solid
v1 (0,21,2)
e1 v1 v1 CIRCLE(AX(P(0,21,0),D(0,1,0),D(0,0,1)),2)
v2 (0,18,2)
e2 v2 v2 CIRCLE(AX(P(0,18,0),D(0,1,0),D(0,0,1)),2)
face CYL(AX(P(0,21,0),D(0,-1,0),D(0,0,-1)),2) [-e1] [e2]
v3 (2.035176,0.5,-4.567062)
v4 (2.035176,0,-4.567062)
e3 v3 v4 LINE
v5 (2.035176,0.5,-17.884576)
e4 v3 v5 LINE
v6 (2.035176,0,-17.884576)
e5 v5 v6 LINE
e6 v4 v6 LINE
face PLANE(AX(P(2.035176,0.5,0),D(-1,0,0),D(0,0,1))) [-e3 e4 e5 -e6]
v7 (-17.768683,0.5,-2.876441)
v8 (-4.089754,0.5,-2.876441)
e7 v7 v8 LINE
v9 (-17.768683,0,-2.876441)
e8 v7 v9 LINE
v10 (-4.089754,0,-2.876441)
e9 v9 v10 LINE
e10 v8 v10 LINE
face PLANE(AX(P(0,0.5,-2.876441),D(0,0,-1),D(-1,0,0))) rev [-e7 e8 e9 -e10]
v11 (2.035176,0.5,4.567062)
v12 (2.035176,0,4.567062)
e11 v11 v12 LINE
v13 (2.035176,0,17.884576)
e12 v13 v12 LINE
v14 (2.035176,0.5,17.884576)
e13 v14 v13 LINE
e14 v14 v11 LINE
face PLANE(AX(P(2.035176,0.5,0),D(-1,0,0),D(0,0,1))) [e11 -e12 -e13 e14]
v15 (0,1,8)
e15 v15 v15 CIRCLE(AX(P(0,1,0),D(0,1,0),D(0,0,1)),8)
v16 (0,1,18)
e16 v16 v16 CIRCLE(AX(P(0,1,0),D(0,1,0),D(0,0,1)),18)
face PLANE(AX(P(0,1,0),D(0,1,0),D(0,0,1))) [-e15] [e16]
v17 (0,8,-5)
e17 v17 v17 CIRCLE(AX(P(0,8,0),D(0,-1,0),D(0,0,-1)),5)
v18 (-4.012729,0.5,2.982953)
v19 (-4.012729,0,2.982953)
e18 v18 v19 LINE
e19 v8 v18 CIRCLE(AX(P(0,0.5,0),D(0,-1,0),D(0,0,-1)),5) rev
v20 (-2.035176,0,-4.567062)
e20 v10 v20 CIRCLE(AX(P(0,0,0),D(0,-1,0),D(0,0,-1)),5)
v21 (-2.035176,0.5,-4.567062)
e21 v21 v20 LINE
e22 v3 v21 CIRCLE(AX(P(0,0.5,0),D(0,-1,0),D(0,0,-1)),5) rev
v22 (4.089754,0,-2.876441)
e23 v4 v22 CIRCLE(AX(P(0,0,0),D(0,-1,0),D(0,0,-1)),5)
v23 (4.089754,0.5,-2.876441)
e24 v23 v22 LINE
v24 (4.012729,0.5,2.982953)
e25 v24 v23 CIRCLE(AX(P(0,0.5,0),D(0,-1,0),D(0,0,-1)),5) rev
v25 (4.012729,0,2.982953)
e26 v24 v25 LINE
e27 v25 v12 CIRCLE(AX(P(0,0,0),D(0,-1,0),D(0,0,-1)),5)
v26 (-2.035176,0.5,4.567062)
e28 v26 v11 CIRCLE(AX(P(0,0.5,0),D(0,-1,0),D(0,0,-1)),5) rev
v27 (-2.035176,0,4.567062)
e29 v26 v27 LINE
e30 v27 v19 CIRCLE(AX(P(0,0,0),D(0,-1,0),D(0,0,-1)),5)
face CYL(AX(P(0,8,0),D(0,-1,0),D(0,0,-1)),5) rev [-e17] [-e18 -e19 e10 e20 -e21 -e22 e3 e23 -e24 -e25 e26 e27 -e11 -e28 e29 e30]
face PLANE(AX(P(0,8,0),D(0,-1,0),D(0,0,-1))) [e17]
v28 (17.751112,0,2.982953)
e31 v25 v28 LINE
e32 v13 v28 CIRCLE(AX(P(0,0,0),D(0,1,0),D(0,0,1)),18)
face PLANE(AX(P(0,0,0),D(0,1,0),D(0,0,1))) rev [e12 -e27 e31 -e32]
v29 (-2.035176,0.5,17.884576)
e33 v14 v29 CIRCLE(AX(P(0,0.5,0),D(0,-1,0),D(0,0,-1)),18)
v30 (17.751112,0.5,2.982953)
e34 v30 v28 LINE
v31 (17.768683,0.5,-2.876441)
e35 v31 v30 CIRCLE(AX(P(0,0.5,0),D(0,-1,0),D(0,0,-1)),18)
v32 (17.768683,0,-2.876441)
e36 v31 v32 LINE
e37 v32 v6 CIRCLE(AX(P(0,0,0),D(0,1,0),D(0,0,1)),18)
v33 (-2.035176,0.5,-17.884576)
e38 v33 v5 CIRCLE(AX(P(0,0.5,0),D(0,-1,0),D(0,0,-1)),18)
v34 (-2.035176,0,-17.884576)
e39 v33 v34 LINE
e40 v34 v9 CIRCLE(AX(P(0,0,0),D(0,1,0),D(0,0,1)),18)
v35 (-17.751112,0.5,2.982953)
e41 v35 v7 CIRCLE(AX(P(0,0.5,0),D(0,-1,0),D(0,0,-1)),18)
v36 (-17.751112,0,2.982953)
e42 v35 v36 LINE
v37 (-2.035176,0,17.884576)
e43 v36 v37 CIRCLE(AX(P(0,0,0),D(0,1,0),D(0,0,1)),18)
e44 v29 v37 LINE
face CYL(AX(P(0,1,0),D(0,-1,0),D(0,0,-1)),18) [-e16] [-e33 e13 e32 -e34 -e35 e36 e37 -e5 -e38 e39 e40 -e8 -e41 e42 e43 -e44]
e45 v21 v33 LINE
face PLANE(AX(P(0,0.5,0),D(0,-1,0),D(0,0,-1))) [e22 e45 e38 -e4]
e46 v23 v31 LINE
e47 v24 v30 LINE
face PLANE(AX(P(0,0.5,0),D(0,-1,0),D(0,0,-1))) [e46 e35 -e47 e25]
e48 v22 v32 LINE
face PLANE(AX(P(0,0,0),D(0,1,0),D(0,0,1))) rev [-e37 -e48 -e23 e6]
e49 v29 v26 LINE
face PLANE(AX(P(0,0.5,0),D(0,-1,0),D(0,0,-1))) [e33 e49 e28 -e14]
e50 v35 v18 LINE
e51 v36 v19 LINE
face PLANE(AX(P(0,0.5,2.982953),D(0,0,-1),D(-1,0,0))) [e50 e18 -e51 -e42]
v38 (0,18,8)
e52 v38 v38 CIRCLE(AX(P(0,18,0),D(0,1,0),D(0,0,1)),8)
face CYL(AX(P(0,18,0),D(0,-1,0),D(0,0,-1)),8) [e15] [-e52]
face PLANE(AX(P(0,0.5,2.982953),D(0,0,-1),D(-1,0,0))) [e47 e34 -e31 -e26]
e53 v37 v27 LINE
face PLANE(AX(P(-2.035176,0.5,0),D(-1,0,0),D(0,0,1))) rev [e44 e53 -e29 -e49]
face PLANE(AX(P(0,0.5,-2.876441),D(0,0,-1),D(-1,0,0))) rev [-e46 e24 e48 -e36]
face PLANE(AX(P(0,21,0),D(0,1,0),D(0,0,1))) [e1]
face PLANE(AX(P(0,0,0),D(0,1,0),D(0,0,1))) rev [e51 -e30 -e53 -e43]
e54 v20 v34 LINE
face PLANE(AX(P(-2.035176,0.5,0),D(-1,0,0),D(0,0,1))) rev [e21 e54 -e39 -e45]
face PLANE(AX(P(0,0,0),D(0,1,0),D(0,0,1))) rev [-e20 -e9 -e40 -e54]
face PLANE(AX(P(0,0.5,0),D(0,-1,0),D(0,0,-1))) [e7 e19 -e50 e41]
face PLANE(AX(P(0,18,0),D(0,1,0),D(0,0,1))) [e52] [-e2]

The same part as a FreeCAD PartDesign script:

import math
import FreeCAD as App
import Part
import Sketcher

V = App.Vector
Q = App.Units.Quantity

doc = App.newDocument("Part")
body = doc.addObject("PartDesign::Body", "Body")

# Sketch on XZ plane
sketch1 = body.newObject("Sketcher::SketchObject", "Sketch")
sketch1.AttachmentSupport = (doc.getObject("XZ_Plane"), [""])
sketch1.MapMode = "FlatFace"
sketch1.addGeometry(Part.Circle(V(0, 0, 0), V(0, 0, 1), 18), False)
sketch1.addConstraint([
    Sketcher.Constraint("Coincident", 0, 3, -1, 1),
    Sketcher.Constraint("Diameter", 0, Q("36 mm")),
])
pad1 = body.newObject("PartDesign::Pad", "Pad")
pad1.Profile = sketch1
pad1.Length = 1
pad1.Reversed = True

# Sketch on XZ plane
sketch2 = body.newObject("Sketcher::SketchObject", "Sketch001")
sketch2.AttachmentSupport = (doc.getObject("XZ_Plane"), [""])
sketch2.MapMode = "FlatFace"
sketch2.AttachmentOffset = App.Placement(V(0, 0, -1), App.Rotation())
sketch2.addGeometry(Part.Circle(V(0, 0, 0), V(0, 0, 1), 8), False)
sketch2.addConstraint([
    Sketcher.Constraint("Coincident", 0, 3, -1, 1),
    Sketcher.Constraint("Diameter", 0, Q("16 mm")),
])
pad2 = body.newObject("PartDesign::Pad", "Pad001")
pad2.Profile = sketch2
pad2.Length = 17
pad2.Reversed = True

# Sketch on XZ plane
sketch3 = body.newObject("Sketcher::SketchObject", "Sketch002")
sketch3.AttachmentSupport = (doc.getObject("XZ_Plane"), [""])
sketch3.MapMode = "FlatFace"
sketch3.AttachmentOffset = App.Placement(V(0, 0, -18), App.Rotation())
sketch3.addGeometry(Part.Circle(V(0, 0, 0), V(0, 0, 1), 2), False)
sketch3.addConstraint([
    Sketcher.Constraint("Coincident", 0, 3, -1, 1),
    Sketcher.Constraint("Diameter", 0, Q("4 mm")),
])
pad3 = body.newObject("PartDesign::Pad", "Pad002")
pad3.Profile = sketch3
pad3.Length = 3
pad3.Reversed = True

# Sketch on XZ plane
sketch4 = body.newObject("Sketcher::SketchObject", "Sketch003")
sketch4.AttachmentSupport = (doc.getObject("XZ_Plane"), [""])
sketch4.MapMode = "FlatFace"
sketch4.addGeometry(Part.Circle(V(0, 0, 0), V(0, 0, 1), 5), False)
sketch4.addConstraint([
    Sketcher.Constraint("Coincident", 0, 3, -1, 1),
    Sketcher.Constraint("Diameter", 0, Q("10 mm")),
])
pocket1 = body.newObject("PartDesign::Pocket", "Pocket")
pocket1.Profile = sketch4
pocket1.Length = 8

# Sketch on XZ plane
sketch5 = body.newObject("Sketcher::SketchObject", "Sketch004")
sketch5.AttachmentSupport = (doc.getObject("XZ_Plane"), [""])
sketch5.MapMode = "FlatFace"
sketch5.addGeometry([
    Part.ArcOfCircle(Part.Circle(V(0, 0, 0), V(0, 0, 1), 5), math.radians(114), math.radians(143)),  # 0
    Part.LineSegment(V(-4, 3, 0), V(-17.8, 3, 0)),  # 1
    Part.ArcOfCircle(Part.Circle(V(0, 0, 0), V(0, 0, 1), 18), math.radians(170.46), math.radians(180)),  # 2
    Part.ArcOfCircle(Part.Circle(V(0, 0, 0), V(0, 0, 1), 18), math.radians(-180), math.radians(-170.8)),  # 3
    Part.LineSegment(V(-17.8, -2.9, 0), V(-4.1, -2.9, 0)),  # 4
    Part.ArcOfCircle(Part.Circle(V(0, 0, 0), V(0, 0, 1), 5), math.radians(-145), math.radians(-114)),  # 5
    Part.LineSegment(V(-2, -4.6, 0), V(-2, -17.9, 0)),  # 6
    Part.ArcOfCircle(Part.Circle(V(0, 0, 0), V(0, 0, 1), 18), math.radians(-96.49), math.radians(-90)),  # 7
    Part.ArcOfCircle(Part.Circle(V(0, 0, 0), V(0, 0, 1), 18), math.radians(-90), math.radians(-83.51)),  # 8
    Part.LineSegment(V(2, -17.9, 0), V(2, -4.6, 0)),  # 9
    Part.ArcOfCircle(Part.Circle(V(0, 0, 0), V(0, 0, 1), 5), math.radians(-66), math.radians(-35)),  # 10
    Part.LineSegment(V(4.1, -2.9, 0), V(17.8, -2.9, 0)),  # 11
    Part.ArcOfCircle(Part.Circle(V(0, 0, 0), V(0, 0, 1), 18), math.radians(-9.2), math.radians(0)),  # 12
    Part.ArcOfCircle(Part.Circle(V(0, 0, 0), V(0, 0, 1), 18), math.radians(0), math.radians(9.54)),  # 13
    Part.LineSegment(V(17.8, 3, 0), V(4, 3, 0)),  # 14
    Part.ArcOfCircle(Part.Circle(V(0, 0, 0), V(0, 0, 1), 5), math.radians(37), math.radians(66)),  # 15
    Part.LineSegment(V(2, 4.6, 0), V(2, 17.9, 0)),  # 16
    Part.ArcOfCircle(Part.Circle(V(0, 0, 0), V(0, 0, 1), 18), math.radians(83.51), math.radians(90)),  # 17
    Part.ArcOfCircle(Part.Circle(V(0, 0, 0), V(0, 0, 1), 18), math.radians(90), math.radians(96.49)),  # 18
    Part.LineSegment(V(-2, 17.9, 0), V(-2, 4.6, 0)),  # 19
], False)
sketch5.addConstraint([
    Sketcher.Constraint("Coincident", 0, 2, 1, 1),
    Sketcher.Constraint("Coincident", 1, 2, 2, 1),
    Sketcher.Constraint("Tangent", 2, 2, 3, 1),
    Sketcher.Constraint("Coincident", 3, 2, 4, 1),
    Sketcher.Constraint("Coincident", 4, 2, 5, 1),
    Sketcher.Constraint("Coincident", 5, 2, 6, 1),
    Sketcher.Constraint("Coincident", 6, 2, 7, 1),
    Sketcher.Constraint("Tangent", 7, 2, 8, 1),
    Sketcher.Constraint("Coincident", 8, 2, 9, 1),
    Sketcher.Constraint("Coincident", 9, 2, 10, 1),
    Sketcher.Constraint("Coincident", 10, 2, 11, 1),
    Sketcher.Constraint("Coincident", 11, 2, 12, 1),
    Sketcher.Constraint("Tangent", 12, 2, 13, 1),
    Sketcher.Constraint("Coincident", 13, 2, 14, 1),
    Sketcher.Constraint("Coincident", 14, 2, 15, 1),
    Sketcher.Constraint("Coincident", 15, 2, 16, 1),
    Sketcher.Constraint("Coincident", 16, 2, 17, 1),
    Sketcher.Constraint("Tangent", 17, 2, 18, 1),
    Sketcher.Constraint("Coincident", 18, 2, 19, 1),
    Sketcher.Constraint("Coincident", 19, 2, 0, 1),
    Sketcher.Constraint("Horizontal", 1),
    Sketcher.Constraint("Horizontal", 4),
    Sketcher.Constraint("Vertical", 6),
    Sketcher.Constraint("Vertical", 9),
    Sketcher.Constraint("Horizontal", 11),
    Sketcher.Constraint("Horizontal", 14),
    Sketcher.Constraint("Vertical", 16),
    Sketcher.Constraint("Vertical", 19),
    Sketcher.Constraint("Coincident", 0, 3, -1, 1),
    Sketcher.Constraint("Coincident", 2, 3, -1, 1),
    Sketcher.Constraint("Coincident", 5, 3, -1, 1),
    Sketcher.Constraint("Coincident", 7, 3, -1, 1),
    Sketcher.Constraint("Coincident", 10, 3, -1, 1),
    Sketcher.Constraint("Coincident", 12, 3, -1, 1),
    Sketcher.Constraint("Coincident", 15, 3, -1, 1),
    Sketcher.Constraint("Coincident", 17, 3, -1, 1),
    Sketcher.Constraint("Equal", 2, 3),
    Sketcher.Constraint("Equal", 0, 5),
    Sketcher.Constraint("Equal", 3, 7),
    Sketcher.Constraint("Equal", 7, 8),
    Sketcher.Constraint("Equal", 5, 10),
    Sketcher.Constraint("Equal", 8, 12),
    Sketcher.Constraint("Equal", 12, 13),
    Sketcher.Constraint("Equal", 10, 15),
    Sketcher.Constraint("Equal", 13, 17),
    Sketcher.Constraint("Equal", 17, 18),
    Sketcher.Constraint("PointOnObject", 2, 2, -1),
    Sketcher.Constraint("PointOnObject", 7, 2, -2),
    Sketcher.Constraint("PointOnObject", 12, 2, -1),
    Sketcher.Constraint("PointOnObject", 17, 2, -2),
    Sketcher.Constraint("Horizontal", 6, 2, 8, 2),
    Sketcher.Constraint("Horizontal", 4, 2, 10, 2),
    Sketcher.Constraint("Horizontal", 1, 2, 13, 2),
    Sketcher.Constraint("Horizontal", 16, 2, 18, 2),
    Sketcher.Constraint("Vertical", 9, 2, 15, 2),
    Sketcher.Constraint("Radius", 0, Q("5 mm")),
    Sketcher.Constraint("Radius", 2, Q("18 mm")),
    Sketcher.Constraint("DistanceX", 4, 1, 4, 2, Q("13.678929 mm")),
    Sketcher.Constraint("DistanceX", 1, 2, 1, 1, Q("13.738384 mm")),
    Sketcher.Constraint("DistanceY", 6, 2, 6, 1, Q("13.317514 mm")),
])
pocket2 = body.newObject("PartDesign::Pocket", "Pocket001")
pocket2.Profile = sketch5
pocket2.Length = 0.5

doc.recompute()
